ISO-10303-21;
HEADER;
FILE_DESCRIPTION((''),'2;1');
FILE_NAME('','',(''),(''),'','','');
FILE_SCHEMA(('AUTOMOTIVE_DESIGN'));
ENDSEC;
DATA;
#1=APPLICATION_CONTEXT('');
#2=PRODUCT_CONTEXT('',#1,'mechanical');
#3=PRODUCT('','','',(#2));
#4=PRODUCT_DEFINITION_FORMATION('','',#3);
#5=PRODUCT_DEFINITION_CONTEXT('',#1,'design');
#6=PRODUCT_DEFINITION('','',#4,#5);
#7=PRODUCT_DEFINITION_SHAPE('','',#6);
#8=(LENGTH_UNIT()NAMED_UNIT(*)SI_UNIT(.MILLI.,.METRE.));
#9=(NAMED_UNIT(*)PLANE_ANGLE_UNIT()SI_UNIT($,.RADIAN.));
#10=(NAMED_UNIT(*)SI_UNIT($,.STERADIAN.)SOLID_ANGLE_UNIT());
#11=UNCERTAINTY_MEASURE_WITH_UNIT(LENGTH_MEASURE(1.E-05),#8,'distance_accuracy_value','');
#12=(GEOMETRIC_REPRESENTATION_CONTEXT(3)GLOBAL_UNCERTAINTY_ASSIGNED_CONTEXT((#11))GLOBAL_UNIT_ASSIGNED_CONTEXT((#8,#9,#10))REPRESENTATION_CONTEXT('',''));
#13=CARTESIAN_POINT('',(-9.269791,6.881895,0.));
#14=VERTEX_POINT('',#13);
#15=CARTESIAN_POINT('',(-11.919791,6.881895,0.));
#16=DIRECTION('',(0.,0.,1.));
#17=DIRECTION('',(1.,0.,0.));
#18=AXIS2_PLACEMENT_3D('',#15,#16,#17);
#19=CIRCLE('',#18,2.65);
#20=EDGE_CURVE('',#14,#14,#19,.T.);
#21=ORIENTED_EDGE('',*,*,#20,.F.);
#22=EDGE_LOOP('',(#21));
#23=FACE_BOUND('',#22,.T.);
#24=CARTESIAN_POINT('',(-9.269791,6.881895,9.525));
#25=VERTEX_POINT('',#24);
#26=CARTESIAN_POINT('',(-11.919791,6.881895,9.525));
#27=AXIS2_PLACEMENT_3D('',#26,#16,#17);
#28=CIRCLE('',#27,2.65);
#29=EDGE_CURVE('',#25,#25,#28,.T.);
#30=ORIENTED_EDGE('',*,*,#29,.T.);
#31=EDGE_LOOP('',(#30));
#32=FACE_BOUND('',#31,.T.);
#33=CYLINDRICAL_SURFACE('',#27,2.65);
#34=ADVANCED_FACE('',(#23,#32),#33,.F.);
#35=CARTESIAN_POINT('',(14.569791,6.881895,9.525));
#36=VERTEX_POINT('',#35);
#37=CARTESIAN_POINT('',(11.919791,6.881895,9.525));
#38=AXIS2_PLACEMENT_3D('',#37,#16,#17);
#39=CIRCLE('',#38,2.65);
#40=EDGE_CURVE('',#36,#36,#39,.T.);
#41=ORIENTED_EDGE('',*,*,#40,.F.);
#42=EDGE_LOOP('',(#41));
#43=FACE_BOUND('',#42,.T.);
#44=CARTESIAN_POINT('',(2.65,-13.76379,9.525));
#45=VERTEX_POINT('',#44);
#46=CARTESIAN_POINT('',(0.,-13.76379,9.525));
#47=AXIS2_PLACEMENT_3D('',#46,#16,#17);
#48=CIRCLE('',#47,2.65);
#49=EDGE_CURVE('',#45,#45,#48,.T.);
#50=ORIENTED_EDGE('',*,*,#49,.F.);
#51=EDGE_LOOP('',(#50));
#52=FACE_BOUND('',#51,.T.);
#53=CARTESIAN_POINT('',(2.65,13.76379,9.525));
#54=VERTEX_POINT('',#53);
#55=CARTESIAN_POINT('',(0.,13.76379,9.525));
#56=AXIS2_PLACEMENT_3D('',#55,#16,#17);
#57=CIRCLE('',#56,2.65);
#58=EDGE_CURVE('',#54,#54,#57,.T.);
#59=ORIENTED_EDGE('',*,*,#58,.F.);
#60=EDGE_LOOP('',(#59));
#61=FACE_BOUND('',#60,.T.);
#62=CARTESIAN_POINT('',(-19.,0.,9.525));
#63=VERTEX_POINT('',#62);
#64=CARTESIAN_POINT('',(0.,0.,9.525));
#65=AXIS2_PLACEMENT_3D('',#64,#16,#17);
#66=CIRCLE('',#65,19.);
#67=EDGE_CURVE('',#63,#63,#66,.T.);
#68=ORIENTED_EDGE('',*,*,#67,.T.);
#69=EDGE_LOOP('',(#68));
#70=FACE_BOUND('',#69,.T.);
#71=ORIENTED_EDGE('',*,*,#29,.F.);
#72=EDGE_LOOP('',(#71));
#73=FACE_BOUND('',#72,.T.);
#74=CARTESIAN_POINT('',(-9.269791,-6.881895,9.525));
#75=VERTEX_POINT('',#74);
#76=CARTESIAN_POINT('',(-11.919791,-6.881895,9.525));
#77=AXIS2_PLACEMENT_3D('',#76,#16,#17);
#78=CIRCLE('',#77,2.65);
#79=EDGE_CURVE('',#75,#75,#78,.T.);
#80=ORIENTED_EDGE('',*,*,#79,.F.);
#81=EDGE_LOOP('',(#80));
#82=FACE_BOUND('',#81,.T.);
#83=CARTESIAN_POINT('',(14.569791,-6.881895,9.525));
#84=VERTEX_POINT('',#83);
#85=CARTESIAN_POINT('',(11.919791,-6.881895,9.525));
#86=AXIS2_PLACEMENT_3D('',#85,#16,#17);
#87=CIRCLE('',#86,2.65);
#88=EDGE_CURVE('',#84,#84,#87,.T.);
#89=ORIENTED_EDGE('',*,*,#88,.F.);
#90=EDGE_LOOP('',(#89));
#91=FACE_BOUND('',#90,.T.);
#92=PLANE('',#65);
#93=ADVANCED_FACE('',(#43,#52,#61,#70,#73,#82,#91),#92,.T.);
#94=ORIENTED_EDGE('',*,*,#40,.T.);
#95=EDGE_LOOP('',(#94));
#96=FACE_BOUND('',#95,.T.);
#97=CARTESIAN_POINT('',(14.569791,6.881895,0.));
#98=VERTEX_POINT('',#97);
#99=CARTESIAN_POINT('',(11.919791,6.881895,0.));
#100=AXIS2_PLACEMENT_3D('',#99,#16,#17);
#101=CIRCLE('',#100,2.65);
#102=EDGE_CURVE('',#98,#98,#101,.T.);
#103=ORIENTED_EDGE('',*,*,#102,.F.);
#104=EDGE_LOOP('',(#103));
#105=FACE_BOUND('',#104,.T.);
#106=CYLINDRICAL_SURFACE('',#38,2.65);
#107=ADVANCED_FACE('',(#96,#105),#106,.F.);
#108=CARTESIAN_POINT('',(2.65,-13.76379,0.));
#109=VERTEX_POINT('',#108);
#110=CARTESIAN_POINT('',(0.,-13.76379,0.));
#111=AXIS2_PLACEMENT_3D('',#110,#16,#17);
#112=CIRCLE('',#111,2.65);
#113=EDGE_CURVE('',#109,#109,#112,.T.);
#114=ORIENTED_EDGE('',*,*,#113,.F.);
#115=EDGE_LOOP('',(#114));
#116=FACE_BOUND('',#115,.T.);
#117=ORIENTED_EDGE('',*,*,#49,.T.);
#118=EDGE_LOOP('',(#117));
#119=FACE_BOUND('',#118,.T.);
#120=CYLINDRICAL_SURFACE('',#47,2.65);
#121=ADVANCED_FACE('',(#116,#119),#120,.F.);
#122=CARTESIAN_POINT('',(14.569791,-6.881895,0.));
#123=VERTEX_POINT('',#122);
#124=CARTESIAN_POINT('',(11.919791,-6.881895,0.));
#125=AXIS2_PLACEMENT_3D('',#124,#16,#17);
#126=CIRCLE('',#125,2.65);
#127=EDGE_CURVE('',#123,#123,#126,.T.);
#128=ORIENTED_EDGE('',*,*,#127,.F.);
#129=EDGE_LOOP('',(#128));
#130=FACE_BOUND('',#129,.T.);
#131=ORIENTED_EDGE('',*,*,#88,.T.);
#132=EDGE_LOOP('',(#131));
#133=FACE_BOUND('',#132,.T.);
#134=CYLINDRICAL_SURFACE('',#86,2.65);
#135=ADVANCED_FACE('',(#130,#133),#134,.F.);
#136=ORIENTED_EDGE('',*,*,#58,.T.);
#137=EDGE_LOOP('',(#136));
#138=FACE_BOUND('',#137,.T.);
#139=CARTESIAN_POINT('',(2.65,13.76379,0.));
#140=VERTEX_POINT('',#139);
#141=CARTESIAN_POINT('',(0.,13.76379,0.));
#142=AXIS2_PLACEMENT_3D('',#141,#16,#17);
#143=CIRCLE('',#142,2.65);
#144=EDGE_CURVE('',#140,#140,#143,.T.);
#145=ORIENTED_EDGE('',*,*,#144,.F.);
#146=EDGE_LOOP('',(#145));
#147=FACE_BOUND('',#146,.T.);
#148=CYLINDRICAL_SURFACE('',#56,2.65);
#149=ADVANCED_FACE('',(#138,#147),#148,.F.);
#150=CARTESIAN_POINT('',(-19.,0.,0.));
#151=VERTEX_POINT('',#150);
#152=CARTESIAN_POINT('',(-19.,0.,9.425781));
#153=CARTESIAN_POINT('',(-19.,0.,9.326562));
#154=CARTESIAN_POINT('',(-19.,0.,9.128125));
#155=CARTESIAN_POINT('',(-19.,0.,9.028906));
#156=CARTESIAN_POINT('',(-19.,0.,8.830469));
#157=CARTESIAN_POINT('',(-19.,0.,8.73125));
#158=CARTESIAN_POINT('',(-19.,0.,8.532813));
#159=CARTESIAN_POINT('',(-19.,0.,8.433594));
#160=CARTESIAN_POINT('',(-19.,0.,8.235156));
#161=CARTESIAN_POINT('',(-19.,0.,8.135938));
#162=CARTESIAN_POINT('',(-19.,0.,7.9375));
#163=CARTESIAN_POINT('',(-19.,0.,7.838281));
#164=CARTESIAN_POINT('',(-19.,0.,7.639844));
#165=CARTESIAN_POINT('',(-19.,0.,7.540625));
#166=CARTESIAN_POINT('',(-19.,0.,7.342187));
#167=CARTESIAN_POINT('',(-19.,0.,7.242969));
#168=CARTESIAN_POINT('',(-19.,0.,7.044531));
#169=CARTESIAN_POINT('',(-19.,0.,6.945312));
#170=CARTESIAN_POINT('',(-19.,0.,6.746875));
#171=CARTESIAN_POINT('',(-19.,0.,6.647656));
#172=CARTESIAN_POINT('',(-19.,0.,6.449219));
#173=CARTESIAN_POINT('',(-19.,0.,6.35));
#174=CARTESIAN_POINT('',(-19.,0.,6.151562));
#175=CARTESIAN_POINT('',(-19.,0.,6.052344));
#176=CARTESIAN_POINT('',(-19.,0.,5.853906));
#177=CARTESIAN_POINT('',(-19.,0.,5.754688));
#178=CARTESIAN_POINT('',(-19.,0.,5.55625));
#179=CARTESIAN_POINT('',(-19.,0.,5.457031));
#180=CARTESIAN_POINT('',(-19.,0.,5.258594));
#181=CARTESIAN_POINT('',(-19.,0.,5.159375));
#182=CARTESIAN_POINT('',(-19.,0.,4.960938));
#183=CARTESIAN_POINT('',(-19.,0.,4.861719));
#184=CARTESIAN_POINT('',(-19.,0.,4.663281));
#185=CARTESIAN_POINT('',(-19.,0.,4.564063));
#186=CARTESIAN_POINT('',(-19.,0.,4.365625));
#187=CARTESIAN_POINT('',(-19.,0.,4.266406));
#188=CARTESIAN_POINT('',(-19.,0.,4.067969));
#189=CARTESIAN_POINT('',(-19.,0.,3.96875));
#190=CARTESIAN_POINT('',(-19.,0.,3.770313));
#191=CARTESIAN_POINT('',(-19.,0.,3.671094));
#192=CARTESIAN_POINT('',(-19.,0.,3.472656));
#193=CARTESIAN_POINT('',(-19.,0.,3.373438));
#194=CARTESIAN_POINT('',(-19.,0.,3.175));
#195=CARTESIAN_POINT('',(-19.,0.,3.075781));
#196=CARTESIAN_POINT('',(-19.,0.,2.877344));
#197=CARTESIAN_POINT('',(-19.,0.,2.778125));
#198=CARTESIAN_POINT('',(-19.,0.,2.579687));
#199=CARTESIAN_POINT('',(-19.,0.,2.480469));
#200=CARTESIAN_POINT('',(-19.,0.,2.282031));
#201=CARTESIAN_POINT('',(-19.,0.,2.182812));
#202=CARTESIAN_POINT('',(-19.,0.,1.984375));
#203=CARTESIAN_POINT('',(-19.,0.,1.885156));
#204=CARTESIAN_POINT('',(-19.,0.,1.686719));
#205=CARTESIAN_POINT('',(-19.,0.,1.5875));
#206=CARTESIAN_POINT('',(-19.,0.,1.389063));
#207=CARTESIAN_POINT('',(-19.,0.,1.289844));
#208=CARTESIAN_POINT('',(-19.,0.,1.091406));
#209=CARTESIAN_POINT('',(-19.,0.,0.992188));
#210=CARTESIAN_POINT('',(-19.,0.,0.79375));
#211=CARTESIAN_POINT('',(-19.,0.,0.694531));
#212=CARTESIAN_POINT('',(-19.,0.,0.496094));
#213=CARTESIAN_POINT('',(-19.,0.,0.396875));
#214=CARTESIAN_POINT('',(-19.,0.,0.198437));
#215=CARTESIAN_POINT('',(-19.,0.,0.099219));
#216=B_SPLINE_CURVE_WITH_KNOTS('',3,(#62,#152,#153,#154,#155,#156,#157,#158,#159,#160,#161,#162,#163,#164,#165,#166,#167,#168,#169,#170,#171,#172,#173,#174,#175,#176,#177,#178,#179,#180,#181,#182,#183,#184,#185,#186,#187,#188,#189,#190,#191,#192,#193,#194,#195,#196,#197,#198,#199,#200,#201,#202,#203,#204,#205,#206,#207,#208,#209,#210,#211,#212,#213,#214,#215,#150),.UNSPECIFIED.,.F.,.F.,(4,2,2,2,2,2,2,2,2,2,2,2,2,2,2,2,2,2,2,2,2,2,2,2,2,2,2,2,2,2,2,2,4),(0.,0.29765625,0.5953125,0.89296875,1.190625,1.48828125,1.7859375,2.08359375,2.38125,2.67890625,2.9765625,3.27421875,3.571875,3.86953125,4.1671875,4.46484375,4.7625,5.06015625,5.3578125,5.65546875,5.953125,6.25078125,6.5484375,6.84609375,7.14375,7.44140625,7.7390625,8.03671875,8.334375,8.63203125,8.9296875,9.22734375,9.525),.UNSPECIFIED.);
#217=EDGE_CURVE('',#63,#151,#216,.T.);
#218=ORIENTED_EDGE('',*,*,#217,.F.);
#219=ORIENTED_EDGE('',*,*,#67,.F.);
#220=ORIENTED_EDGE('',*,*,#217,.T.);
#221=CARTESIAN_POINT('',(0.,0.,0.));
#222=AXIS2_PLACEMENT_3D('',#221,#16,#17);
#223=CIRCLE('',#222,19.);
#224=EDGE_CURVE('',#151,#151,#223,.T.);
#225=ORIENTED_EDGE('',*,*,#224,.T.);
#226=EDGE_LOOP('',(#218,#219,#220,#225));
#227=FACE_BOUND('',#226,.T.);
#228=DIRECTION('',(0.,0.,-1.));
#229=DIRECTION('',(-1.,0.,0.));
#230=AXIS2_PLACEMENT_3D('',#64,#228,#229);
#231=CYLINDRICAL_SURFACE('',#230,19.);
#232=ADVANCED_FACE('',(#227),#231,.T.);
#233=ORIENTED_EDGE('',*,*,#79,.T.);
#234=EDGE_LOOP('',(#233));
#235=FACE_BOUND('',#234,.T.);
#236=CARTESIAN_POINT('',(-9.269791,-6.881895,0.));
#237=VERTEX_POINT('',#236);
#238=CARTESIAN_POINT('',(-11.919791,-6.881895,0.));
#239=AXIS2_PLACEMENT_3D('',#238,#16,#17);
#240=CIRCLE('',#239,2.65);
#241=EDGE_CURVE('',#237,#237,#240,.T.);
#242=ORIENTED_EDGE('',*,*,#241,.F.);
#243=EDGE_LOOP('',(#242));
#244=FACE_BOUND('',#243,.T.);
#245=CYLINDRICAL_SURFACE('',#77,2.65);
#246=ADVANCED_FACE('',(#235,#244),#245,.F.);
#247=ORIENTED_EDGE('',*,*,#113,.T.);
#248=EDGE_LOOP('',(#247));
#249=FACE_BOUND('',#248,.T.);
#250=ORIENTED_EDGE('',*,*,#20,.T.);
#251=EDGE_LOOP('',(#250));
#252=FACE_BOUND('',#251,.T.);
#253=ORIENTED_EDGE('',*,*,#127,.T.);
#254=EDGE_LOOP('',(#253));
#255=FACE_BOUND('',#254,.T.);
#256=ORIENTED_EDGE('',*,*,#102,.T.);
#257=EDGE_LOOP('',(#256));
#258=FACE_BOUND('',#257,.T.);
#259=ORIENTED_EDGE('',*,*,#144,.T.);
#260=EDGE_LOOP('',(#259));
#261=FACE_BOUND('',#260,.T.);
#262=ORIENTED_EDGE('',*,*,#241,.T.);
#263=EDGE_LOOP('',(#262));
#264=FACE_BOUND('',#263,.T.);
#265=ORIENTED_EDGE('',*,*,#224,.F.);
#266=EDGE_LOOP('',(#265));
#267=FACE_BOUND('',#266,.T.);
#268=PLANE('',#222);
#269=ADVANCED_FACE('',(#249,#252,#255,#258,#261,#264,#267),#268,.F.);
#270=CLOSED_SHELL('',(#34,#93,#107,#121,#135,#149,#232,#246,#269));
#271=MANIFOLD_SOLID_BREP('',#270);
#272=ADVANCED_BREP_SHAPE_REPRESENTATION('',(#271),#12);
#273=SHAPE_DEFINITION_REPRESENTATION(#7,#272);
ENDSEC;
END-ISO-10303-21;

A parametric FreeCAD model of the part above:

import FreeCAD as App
import Part
import Sketcher

doc = App.newDocument("Part")
params = doc.addObject("Spreadsheet::Sheet", "Params")
for row, (alias, value) in enumerate([
    ("sketch1_diameter", "38 mm"),
    ("pad1_length", "9.525 mm"),
    ("sketch2_diameter", "5.3 mm"),
    ("hole_diameter", "5.3 mm"),
], start=1):
    params.set(f"A{row}", alias)
    params.set(f"B{row}", "=" + value)
    params.setAlias(f"B{row}", alias)

body = doc.addObject("PartDesign::Body", "Body")

# Sketch on XY plane
sketch1 = doc.addObject("Sketcher::SketchObject", "Sketch")
body.addObject(sketch1)
sketch1.AttachmentSupport = (doc.XY_Plane, [""])
sketch1.MapMode = "FlatFace"
sketch1.addGeometry(Part.Circle(App.Vector(0, 0, 0), App.Vector(0, 0, 1), 19), False)
sketch1.addConstraint([
    Sketcher.Constraint("Coincident", 0, 3, -1, 1),
    Sketcher.Constraint("Diameter", 0, 38.0),
])
sketch1.setExpression("Constraints[1]", "Params.sketch1_diameter")
pad1 = doc.addObject("PartDesign::Pad", "Pad")
body.addObject(pad1)
pad1.Profile = sketch1
pad1.setExpression("Length", "Params.pad1_length")

# Sketch on XY plane
sketch2 = doc.addObject("Sketcher::SketchObject", "Sketch001")
body.addObject(sketch2)
sketch2.AttachmentSupport = (doc.XY_Plane, [""])
sketch2.MapMode = "FlatFace"
sketch2.AttachmentOffset = App.Placement(App.Vector(0, 0, 9.525), App.Rotation())
sketch2.addGeometry([
    Part.Circle(App.Vector(-11.9, 6.9, 0), App.Vector(0, 0, 1), 2.6),  # 0
    Part.Circle(App.Vector(0, 13.8, 0), App.Vector(0, 0, 1), 2.6),  # 1
    Part.Circle(App.Vector(11.9, 6.9, 0), App.Vector(0, 0, 1), 2.6),  # 2
    Part.Circle(App.Vector(11.9, -6.9, 0), App.Vector(0, 0, 1), 2.6),  # 3
    Part.Circle(App.Vector(0, -13.8, 0), App.Vector(0, 0, 1), 2.6),  # 4
    Part.Circle(App.Vector(-11.9, -6.9, 0), App.Vector(0, 0, 1), 2.6),  # 5
], False)
sketch2.addConstraint([
    Sketcher.Constraint("Equal", 0, 1),
    Sketcher.Constraint("Equal", 1, 2),
    Sketcher.Constraint("Equal", 2, 3),
    Sketcher.Constraint("Equal", 3, 4),
    Sketcher.Constraint("Equal", 4, 5),
    Sketcher.Constraint("Symmetric", 0, 3, 3, 3, -1, 1),
    Sketcher.Constraint("Symmetric", 1, 3, 4, 3, -1, 1),
    Sketcher.Constraint("Symmetric", 2, 3, 5, 3, -1, 1),
    Sketcher.Constraint("Symmetric", 0, 3, 2, 3, -2),
    Sketcher.Constraint("PointOnObject", 1, 3, -2),
    Sketcher.Constraint("Diameter", 0, 5.3),
    Sketcher.Constraint("DistanceX", 0, 3, -1, 1, 11.919791),
    Sketcher.Constraint("DistanceY", -1, 1, 1, 3, 13.76379),
    Sketcher.Constraint("DistanceY", 3, 3, 2, 3, 13.76379),
])
sketch2.setExpression("Constraints[10]", "Params.sketch2_diameter")
doc.recompute()
hole = doc.addObject("PartDesign::Hole", "Hole")
body.addObject(hole)
hole.Profile = sketch2
hole.ThreadType = "None"
hole.setExpression("Diameter", "Params.hole_diameter")
hole.DepthType = "ThroughAll"

doc.recompute()
